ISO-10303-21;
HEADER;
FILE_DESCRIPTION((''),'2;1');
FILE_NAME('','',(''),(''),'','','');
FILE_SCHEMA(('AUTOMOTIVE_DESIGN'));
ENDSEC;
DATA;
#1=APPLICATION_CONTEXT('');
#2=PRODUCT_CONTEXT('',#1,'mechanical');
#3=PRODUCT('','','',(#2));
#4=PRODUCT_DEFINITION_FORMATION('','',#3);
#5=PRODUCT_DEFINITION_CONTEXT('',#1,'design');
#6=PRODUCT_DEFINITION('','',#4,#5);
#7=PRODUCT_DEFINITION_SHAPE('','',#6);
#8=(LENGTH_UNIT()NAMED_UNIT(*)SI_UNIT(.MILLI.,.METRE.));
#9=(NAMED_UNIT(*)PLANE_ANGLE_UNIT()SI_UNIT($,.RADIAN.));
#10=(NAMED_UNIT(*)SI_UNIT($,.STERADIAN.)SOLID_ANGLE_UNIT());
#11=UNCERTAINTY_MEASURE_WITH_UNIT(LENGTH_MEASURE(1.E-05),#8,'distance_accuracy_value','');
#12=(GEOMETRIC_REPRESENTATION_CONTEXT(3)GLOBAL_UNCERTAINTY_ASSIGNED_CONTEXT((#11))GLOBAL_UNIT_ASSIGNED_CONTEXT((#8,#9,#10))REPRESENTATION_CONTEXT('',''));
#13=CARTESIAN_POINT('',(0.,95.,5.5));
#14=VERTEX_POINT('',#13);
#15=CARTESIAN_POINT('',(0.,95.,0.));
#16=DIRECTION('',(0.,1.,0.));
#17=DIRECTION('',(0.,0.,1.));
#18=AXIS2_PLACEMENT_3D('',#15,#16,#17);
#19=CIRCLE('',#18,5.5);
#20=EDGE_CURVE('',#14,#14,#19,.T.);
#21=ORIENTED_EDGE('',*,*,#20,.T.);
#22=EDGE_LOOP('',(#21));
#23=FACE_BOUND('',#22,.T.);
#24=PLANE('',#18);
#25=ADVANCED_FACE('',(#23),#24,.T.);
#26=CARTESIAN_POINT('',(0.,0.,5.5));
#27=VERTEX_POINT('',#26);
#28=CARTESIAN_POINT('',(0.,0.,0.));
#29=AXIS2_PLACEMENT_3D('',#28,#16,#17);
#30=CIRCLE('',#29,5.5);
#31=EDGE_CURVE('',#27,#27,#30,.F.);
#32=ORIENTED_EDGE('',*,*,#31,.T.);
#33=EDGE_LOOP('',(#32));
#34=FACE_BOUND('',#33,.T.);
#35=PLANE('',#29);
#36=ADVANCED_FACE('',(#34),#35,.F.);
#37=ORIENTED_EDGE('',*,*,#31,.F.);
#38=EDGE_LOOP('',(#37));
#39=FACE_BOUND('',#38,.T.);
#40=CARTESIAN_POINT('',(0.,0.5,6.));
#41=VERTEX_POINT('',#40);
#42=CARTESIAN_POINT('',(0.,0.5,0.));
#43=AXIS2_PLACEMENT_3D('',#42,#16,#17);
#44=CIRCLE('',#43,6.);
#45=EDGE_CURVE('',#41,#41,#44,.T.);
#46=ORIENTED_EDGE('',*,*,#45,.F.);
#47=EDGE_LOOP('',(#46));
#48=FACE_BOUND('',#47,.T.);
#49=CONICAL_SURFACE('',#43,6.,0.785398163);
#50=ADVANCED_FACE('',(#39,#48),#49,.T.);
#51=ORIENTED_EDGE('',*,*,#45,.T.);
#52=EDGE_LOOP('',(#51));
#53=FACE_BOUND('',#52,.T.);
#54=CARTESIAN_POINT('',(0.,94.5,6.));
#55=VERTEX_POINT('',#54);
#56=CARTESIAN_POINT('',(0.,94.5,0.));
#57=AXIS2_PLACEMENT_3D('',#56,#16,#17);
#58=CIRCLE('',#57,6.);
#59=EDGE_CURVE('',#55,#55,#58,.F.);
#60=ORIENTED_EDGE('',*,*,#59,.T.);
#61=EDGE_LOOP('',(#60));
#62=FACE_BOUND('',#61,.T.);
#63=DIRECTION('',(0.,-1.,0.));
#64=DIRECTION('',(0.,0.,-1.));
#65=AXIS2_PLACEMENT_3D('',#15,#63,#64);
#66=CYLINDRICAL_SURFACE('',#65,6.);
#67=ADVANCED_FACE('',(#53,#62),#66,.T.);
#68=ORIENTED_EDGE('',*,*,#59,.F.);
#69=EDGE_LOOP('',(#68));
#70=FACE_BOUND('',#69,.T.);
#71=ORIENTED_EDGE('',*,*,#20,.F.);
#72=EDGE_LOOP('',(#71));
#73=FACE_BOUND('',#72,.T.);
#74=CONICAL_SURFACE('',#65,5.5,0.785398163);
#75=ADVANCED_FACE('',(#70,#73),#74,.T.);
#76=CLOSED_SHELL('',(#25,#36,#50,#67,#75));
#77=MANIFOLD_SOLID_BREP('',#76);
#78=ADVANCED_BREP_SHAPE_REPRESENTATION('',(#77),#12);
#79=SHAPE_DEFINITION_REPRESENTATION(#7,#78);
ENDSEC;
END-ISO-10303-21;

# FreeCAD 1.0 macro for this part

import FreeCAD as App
import Part
import Sketcher
Q = App.Units.Quantity


def edges_at(feature, points):
    """Names of the edges that pass closest to the given points."""
    edges = feature.Shape.Edges
    near = lambda p: min(range(len(edges)), key=lambda i: edges[i].distToShape(Part.Vertex(*p))[0])
    return sorted({f"Edge{near(p) + 1}" for p in points})

doc = App.newDocument("Part")
params = doc.addObject("Spreadsheet::Sheet", "Params")
for row, (alias, value) in enumerate([
    ("sketch1_diameter", "12 mm"),
    ("pad1_length", "95 mm"),
    ("chamfer_size", "0.5 mm"),
], start=1):
    params.set(f"A{row}", alias)
    params.set(f"B{row}", "=" + value)
    params.setAlias(f"B{row}", alias)

body = doc.addObject("PartDesign::Body", "Body")

# Sketch on XZ plane
sketch1 = body.newObject("Sketcher::SketchObject", "Sketch")
sketch1.AttachmentSupport = (doc.getObject("XZ_Plane"), [""])
sketch1.MapMode = "FlatFace"
sketch1.addGeometry(Part.Circle(App.Vector(0, 0, 0), App.Vector(0, 0, 1), 6), False)
sketch1.addConstraint([
    Sketcher.Constraint("Coincident", 0, 3, -1, 1),
    Sketcher.Constraint("Diameter", 0, Q("12 mm")),
])
sketch1.setExpression("Constraints[1]", "Params.sketch1_diameter")
pad1 = body.newObject("PartDesign::Pad", "Pad")
pad1.Profile = sketch1
pad1.setExpression("Length", "Params.pad1_length")
pad1.Reversed = True
doc.recompute()

chamfer = body.newObject("PartDesign::Chamfer", "Chamfer")
chamfer.Base = (pad1, edges_at(pad1, [(-6, 0, 0), (-6, 95, 0)]))
chamfer.setExpression("Size", "Params.chamfer_size")

doc.recompute()
